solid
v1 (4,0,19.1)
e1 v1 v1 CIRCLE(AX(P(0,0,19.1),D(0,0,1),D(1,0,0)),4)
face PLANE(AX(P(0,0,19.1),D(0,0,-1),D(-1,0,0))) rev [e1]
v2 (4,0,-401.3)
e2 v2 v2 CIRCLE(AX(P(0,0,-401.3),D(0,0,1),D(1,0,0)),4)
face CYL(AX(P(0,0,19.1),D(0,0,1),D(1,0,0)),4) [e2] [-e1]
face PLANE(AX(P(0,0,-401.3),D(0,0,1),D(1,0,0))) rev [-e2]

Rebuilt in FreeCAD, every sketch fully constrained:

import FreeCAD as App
import Part
import Sketcher

V = App.Vector

doc = App.newDocument("Part")
body = doc.addObject("PartDesign::Body", "Body")

# Sketch on YZ plane
sketch1 = body.newObject("Sketcher::SketchObject", "Sketch")
sketch1.AttachmentSupport = (doc.getObject("YZ_Plane"), [""])
sketch1.MapMode = "FlatFace"
sketch1.addGeometry([
    Part.LineSegment(V(4, 19.1, 0), V(0, 19.1, 0)),
    Part.LineSegment(V(0, 19.1, 0), V(0, -401.3, 0)),
    Part.LineSegment(V(0, -401.3, 0), V(4, -401.3, 0)),
    Part.LineSegment(V(4, -401.3, 0), V(4, 19.1, 0)),
], False)
sketch1.addConstraint([
    Sketcher.Constraint("Coincident", 0, 2, 1, 1),
    Sketcher.Constraint("Coincident", 1, 2, 2, 1),
    Sketcher.Constraint("Coincident", 2, 2, 3, 1),
    Sketcher.Constraint("Coincident", 3, 2, 0, 1),
    Sketcher.Constraint("Horizontal", 0),
    Sketcher.Constraint("Vertical", 1),
    Sketcher.Constraint("Horizontal", 2),
    Sketcher.Constraint("Vertical", 3),
    Sketcher.Constraint("PointOnObject", 0, 2, -2),
    Sketcher.Constraint("DistanceX", 0, 2, 0, 1, 4.0),
    Sketcher.Constraint("DistanceY", 1, 2, 1, 1, 420.400001),
    Sketcher.Constraint("DistanceY", -1, 1, 0, 2, 19.1),
])
revolution = body.newObject("PartDesign::Revolution", "Revolution")
revolution.Profile = sketch1
revolution.ReferenceAxis = (sketch1, ["V_Axis"])
revolution.Angle = 360

doc.recompute()
